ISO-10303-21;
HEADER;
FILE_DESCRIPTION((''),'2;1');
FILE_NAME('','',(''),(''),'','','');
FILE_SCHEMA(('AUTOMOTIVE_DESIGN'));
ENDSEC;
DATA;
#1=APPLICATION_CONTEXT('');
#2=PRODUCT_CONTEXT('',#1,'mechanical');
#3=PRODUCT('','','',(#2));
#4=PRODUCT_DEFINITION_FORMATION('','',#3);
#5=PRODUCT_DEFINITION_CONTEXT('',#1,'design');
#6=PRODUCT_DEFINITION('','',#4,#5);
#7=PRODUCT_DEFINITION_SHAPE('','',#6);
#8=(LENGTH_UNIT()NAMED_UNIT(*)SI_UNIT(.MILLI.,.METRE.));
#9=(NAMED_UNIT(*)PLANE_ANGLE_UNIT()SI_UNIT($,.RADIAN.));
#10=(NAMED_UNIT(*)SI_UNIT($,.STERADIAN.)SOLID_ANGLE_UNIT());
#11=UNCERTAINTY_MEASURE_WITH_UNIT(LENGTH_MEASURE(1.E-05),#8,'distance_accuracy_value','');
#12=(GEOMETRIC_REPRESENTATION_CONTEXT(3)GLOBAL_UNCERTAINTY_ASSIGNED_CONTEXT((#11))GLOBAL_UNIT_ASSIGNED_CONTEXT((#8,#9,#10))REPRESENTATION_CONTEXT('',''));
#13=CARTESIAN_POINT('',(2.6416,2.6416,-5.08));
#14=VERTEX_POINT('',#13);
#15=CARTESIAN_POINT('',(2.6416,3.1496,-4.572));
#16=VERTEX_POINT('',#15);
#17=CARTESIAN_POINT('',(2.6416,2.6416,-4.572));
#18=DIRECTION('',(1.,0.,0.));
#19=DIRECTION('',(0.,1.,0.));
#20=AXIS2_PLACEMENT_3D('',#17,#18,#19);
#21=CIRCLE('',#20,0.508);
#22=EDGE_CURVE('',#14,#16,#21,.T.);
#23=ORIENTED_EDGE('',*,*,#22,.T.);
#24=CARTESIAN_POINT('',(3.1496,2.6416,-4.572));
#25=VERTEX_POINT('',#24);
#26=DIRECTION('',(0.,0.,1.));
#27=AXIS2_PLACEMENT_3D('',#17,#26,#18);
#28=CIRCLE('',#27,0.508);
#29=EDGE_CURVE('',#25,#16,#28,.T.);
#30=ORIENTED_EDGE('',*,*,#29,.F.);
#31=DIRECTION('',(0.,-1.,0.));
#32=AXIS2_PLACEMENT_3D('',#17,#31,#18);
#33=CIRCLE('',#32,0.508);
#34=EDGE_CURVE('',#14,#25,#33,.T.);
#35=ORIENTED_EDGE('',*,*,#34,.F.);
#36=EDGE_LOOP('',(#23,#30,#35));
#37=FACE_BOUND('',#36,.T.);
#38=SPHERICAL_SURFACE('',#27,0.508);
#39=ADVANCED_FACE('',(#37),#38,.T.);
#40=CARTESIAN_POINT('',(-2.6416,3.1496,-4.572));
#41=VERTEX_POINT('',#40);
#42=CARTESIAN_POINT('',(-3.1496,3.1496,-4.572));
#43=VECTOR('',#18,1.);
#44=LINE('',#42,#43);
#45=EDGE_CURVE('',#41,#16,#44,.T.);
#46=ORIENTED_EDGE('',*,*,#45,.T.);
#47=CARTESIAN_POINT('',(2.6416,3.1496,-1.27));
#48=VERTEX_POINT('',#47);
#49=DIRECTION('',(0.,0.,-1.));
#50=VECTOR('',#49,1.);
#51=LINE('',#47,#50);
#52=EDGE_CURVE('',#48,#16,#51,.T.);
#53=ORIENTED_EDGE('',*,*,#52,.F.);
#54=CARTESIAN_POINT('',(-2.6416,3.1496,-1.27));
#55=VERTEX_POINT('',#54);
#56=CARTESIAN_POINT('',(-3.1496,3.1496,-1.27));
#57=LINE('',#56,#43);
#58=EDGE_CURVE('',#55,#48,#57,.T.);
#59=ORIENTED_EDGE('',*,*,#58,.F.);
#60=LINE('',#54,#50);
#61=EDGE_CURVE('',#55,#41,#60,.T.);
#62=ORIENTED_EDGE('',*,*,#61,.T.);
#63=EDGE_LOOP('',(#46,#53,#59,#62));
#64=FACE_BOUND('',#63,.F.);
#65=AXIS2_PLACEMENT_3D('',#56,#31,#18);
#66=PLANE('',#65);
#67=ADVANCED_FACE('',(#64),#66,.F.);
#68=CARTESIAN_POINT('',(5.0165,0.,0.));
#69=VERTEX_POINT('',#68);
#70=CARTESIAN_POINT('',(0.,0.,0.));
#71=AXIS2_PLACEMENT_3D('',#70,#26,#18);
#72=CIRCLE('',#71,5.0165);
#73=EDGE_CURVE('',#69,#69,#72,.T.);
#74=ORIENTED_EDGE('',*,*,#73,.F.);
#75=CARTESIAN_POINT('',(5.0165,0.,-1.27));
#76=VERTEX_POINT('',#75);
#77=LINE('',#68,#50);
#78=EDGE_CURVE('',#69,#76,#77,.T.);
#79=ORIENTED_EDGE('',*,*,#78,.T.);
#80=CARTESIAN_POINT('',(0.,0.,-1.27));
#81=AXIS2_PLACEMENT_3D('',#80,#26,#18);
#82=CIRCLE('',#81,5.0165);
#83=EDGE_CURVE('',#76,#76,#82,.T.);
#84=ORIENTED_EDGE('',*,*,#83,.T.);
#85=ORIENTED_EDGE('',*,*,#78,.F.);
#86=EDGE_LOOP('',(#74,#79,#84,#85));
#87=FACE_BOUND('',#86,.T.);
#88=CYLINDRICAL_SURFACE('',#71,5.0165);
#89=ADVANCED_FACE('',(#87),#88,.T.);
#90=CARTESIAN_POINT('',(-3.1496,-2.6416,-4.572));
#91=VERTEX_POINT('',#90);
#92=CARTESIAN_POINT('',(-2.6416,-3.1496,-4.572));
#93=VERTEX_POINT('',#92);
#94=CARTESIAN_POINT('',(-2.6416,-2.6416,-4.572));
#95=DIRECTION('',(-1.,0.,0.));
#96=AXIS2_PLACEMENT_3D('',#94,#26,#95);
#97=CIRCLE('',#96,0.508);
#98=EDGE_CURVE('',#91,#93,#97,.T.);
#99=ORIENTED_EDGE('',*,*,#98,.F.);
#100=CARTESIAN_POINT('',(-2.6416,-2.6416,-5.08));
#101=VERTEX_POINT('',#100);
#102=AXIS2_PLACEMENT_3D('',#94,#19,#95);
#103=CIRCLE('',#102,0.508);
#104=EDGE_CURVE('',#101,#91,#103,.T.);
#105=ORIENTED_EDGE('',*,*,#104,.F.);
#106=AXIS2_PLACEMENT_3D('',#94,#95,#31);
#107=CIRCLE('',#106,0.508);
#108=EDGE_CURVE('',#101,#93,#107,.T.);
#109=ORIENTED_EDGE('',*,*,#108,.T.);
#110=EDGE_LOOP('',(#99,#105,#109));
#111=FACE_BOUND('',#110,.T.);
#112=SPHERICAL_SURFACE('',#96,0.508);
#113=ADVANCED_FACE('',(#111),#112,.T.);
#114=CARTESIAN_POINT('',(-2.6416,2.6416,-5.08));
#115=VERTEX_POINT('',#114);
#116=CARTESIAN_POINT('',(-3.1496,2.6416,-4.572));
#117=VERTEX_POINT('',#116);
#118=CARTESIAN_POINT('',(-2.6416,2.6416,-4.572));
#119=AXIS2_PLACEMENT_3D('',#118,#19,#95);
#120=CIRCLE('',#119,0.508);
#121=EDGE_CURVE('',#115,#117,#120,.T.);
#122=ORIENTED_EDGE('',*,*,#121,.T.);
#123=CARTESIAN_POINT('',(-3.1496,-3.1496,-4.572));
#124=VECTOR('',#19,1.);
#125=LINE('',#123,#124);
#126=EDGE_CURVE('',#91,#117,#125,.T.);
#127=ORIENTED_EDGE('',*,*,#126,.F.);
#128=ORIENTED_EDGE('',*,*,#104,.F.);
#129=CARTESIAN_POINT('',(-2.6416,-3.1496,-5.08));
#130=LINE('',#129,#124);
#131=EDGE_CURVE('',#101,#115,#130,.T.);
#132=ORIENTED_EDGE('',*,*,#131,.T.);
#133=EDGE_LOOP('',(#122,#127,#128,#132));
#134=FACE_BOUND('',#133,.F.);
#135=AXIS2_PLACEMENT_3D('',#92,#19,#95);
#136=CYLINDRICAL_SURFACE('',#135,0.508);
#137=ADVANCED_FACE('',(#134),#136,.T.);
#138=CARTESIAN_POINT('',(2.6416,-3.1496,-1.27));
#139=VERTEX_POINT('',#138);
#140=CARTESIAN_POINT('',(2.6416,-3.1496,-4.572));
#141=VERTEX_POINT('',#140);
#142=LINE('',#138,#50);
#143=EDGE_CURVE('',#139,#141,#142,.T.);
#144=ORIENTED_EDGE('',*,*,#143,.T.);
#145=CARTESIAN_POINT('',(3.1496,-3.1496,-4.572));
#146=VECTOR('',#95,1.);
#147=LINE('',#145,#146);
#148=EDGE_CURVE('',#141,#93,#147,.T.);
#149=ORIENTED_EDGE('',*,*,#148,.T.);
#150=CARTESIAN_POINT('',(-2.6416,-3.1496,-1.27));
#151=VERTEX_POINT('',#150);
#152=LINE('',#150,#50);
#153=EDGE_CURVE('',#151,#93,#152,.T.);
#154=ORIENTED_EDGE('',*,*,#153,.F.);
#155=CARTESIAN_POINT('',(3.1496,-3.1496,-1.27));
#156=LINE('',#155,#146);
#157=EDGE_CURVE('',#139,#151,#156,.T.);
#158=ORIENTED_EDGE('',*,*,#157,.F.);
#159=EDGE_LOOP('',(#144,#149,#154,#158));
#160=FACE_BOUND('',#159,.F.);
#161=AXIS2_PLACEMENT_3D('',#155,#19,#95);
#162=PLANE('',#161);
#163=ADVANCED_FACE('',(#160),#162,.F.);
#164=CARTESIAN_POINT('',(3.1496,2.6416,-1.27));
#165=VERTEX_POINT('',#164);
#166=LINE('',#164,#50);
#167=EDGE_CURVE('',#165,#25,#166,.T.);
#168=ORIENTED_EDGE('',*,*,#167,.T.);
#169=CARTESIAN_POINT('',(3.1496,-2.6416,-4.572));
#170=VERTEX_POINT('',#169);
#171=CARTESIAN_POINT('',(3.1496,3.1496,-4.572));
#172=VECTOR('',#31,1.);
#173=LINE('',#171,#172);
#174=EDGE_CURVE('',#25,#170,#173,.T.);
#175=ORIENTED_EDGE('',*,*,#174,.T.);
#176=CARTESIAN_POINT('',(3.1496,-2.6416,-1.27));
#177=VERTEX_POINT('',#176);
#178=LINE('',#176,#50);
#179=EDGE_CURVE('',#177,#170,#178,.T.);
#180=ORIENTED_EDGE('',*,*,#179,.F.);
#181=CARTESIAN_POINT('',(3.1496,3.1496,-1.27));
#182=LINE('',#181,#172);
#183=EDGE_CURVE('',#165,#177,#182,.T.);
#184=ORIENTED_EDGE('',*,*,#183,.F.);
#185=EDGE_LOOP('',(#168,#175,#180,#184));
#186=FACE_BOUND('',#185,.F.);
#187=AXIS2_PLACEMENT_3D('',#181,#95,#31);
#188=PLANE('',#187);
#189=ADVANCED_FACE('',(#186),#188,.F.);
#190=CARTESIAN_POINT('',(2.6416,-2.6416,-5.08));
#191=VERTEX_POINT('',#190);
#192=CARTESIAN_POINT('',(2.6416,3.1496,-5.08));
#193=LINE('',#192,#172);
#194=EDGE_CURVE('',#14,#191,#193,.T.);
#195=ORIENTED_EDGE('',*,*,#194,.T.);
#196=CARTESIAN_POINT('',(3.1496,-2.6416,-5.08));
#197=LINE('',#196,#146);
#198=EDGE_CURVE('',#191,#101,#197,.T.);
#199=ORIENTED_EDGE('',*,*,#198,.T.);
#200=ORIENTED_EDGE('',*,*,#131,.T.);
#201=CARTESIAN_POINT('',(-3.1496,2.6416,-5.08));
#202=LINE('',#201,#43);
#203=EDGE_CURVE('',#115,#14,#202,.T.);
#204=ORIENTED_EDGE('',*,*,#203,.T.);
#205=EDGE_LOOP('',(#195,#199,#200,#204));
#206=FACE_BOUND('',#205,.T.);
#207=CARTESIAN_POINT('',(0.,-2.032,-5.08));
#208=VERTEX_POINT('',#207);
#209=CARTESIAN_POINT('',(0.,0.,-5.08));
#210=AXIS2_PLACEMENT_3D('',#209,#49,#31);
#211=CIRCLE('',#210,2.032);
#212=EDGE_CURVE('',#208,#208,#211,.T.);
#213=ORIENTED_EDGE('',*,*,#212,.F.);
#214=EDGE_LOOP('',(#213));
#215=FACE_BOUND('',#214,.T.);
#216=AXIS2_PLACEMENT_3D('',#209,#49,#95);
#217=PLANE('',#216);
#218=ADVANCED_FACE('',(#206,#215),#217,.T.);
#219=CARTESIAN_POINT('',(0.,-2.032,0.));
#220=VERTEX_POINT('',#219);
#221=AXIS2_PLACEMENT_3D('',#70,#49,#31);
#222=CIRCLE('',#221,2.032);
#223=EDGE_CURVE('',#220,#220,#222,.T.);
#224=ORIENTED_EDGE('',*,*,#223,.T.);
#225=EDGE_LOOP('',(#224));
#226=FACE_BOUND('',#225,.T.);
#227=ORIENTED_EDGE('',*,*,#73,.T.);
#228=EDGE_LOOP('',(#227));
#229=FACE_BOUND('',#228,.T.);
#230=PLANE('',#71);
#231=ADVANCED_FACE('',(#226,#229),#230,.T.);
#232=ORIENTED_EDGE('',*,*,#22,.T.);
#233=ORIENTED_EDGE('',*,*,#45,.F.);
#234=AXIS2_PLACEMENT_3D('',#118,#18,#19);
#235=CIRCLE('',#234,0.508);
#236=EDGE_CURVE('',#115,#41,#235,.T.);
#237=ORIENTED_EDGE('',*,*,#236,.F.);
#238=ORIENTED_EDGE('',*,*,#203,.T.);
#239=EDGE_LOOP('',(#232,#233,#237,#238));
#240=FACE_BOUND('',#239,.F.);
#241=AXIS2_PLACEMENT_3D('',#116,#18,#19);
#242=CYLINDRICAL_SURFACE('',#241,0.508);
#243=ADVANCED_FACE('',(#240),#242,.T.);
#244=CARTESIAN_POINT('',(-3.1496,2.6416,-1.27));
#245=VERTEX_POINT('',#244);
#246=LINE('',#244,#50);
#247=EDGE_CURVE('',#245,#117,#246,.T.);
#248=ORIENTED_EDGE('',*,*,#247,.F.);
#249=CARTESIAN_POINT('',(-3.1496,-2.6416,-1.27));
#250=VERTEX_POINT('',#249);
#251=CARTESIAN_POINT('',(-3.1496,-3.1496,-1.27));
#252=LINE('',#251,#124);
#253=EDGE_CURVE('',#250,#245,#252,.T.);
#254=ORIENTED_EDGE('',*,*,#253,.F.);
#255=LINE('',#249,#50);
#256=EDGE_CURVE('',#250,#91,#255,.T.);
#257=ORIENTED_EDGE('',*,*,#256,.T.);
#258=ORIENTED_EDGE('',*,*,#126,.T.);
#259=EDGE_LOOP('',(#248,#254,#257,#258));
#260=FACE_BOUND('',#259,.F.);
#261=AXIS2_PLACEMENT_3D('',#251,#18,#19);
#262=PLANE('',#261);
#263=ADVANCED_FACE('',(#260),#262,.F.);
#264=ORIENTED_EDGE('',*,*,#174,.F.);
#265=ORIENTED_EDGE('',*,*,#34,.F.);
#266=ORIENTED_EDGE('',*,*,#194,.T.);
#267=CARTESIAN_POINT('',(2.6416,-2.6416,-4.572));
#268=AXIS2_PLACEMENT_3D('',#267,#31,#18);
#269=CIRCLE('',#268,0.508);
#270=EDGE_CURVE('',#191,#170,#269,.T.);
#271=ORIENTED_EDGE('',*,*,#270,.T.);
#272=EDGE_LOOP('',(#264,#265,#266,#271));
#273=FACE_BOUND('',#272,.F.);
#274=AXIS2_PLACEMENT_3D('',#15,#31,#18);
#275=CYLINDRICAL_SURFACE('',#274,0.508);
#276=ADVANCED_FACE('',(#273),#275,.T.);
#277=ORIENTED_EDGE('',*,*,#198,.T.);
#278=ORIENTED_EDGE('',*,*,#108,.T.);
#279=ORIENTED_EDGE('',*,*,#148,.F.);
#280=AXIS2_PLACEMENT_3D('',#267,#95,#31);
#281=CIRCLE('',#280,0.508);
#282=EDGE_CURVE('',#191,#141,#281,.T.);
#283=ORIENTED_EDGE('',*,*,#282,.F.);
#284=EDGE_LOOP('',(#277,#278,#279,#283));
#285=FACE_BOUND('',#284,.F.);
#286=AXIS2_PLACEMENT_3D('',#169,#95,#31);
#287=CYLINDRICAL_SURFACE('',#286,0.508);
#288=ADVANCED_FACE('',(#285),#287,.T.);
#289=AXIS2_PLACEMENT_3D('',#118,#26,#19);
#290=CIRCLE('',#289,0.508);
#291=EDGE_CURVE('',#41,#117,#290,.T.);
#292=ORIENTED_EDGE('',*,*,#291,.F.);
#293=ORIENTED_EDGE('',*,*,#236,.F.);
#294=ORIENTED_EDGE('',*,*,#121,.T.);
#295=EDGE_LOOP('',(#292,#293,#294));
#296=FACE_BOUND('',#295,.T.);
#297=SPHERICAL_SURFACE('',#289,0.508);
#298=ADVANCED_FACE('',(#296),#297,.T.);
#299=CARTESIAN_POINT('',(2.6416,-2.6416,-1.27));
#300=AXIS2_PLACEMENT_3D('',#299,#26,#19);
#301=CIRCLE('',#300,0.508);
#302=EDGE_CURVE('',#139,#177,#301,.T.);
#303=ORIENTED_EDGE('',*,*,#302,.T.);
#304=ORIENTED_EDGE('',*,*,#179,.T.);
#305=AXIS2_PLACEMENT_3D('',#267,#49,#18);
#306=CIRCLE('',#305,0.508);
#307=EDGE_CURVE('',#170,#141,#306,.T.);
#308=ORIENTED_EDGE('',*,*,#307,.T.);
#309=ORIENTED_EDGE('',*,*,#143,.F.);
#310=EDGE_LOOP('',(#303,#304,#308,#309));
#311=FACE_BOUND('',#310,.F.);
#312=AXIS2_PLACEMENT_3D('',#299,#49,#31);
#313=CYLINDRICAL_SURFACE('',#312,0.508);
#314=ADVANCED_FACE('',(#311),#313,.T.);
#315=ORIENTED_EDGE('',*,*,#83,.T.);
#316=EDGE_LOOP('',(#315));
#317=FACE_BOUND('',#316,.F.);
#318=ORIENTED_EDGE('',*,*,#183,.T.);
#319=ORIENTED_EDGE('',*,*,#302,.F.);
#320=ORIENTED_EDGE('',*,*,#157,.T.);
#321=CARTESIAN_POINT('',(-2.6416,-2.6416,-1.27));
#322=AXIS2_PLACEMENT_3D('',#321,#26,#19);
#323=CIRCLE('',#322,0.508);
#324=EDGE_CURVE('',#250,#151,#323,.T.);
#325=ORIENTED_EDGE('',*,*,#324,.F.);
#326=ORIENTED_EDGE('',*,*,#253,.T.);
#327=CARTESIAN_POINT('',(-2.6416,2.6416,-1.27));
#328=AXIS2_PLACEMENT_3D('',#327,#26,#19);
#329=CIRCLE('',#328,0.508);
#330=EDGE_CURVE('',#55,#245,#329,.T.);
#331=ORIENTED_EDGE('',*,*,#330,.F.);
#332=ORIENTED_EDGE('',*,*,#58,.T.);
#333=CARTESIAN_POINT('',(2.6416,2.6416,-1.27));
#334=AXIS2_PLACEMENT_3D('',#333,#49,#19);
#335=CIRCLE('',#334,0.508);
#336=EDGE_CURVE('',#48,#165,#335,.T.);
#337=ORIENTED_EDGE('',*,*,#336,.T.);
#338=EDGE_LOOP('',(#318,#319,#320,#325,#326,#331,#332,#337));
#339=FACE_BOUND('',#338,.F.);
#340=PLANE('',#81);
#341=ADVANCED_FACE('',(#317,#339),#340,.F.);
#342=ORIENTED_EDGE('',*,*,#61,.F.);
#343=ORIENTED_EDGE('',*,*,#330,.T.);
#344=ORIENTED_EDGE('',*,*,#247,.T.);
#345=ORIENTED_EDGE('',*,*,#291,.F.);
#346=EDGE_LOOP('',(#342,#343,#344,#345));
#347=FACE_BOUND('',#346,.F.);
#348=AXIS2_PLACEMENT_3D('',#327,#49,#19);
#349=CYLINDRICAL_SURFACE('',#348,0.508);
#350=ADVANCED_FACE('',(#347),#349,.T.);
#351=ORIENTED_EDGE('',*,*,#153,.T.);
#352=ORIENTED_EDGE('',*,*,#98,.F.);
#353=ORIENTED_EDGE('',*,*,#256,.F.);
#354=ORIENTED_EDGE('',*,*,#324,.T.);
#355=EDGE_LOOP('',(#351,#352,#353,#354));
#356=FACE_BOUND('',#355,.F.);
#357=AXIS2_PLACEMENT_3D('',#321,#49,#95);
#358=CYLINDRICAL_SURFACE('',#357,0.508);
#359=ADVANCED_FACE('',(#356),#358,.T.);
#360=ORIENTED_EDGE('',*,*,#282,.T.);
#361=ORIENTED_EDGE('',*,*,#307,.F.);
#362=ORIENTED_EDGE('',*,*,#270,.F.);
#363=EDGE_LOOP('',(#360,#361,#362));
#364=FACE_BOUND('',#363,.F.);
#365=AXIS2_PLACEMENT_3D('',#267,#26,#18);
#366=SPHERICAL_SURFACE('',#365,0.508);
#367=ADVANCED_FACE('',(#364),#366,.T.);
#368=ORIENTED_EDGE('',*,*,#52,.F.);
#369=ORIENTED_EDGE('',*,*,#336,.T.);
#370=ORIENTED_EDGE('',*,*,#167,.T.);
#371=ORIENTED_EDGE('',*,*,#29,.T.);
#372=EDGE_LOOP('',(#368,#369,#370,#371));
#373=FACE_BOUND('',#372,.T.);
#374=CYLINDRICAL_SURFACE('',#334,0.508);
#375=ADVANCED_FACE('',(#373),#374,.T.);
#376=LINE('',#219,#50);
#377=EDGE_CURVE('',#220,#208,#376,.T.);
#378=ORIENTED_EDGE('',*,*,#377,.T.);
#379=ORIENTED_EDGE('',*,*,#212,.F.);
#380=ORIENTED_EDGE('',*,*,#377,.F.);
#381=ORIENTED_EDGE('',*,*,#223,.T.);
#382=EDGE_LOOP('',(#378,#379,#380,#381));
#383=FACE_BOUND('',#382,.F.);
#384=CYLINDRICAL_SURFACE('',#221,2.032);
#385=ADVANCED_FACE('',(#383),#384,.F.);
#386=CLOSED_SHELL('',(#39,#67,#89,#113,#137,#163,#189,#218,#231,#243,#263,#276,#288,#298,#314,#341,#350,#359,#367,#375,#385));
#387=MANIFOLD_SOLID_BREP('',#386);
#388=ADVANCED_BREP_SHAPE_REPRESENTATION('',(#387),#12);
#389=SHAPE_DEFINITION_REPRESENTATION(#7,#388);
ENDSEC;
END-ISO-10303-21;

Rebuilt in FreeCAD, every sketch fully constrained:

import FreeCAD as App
import Part
import Sketcher
from FreeCAD import Vector
Q = App.Units.Quantity


def edges_at(feature, points):
    """Names of the edges that pass closest to the given points."""
    edges = feature.Shape.Edges
    near = lambda p: min(range(len(edges)), key=lambda i: edges[i].distToShape(Part.Vertex(*p))[0])
    return sorted({f"Edge{near(p) + 1}" for p in points})


def add_polygon(sketch, points):
    """Adds a closed chain of lines whose ends are joined by coincident constraints."""
    first, n = sketch.GeometryCount, len(points)
    for a, b in zip(points, points[1:] + points[:1]):
        sketch.addGeometry(Part.LineSegment(App.Vector(*a, 0), App.Vector(*b, 0)), False)
    for i in range(n):
        sketch.addConstraint(Sketcher.Constraint("Coincident", first + i, 2, first + (i + 1) % n, 1))

doc = App.newDocument("Part")
params = doc.addObject("Spreadsheet::Sheet", "Params")
for row, (alias, value) in enumerate([
    ("sketch1_diameter", "0.395 in"),
    ("pad1_length", "0.05 in"),
    ("sketch2_width", "0.248 in"),
    ("pad2_length", "0.15 in"),
    ("fillet_radius", "0.02 in"),
    ("sketch3_diameter", "0.16 in"),
    ("hole_diameter", "0.16 in"),
], start=1):
    params.set(f"A{row}", alias)
    params.set(f"B{row}", "=" + value)
    params.setAlias(f"B{row}", alias)

body = doc.addObject("PartDesign::Body", "Body")

# Sketch on XY plane
sketch1 = doc.addObject("Sketcher::SketchObject", "Sketch")
body.addObject(sketch1)
sketch1.AttachmentSupport = (doc.XY_Plane, [""])
sketch1.MapMode = "FlatFace"
sketch1.addGeometry(Part.Circle(Vector(0, 0, 0), Vector(0, 0, 1), 5), False)
sketch1.addConstraint(Sketcher.Constraint("Coincident", 0, 3, -1, 1))
sketch1.addConstraint(Sketcher.Constraint("Diameter", 0, Q("0.395 in")))
sketch1.setExpression("Constraints[1]", "Params.sketch1_diameter")
pad1 = doc.addObject("PartDesign::Pad", "Pad")
body.addObject(pad1)
pad1.Profile = sketch1
pad1.setExpression("Length", "Params.pad1_length")
pad1.Reversed = True

# Sketch on XY plane
sketch2 = doc.addObject("Sketcher::SketchObject", "Sketch001")
body.addObject(sketch2)
sketch2.AttachmentSupport = (doc.XY_Plane, [""])
sketch2.MapMode = "FlatFace"
sketch2.AttachmentOffset = App.Placement(Vector(0, 0, -0.05 * 25.4), App.Rotation())
add_polygon(sketch2, [(3, 3), (3, -3), (-3, -3), (-3, 3)])  # lines 0-3
sketch2.addConstraint(Sketcher.Constraint("Vertical", 0))
sketch2.addConstraint(Sketcher.Constraint("Horizontal", 1))
sketch2.addConstraint(Sketcher.Constraint("Vertical", 2))
sketch2.addConstraint(Sketcher.Constraint("Horizontal", 3))
sketch2.addConstraint(Sketcher.Constraint("Symmetric", 0, 2, 2, 2, -1, 1))
sketch2.addConstraint(Sketcher.Constraint("Equal", 3, 0))
sketch2.addConstraint(Sketcher.Constraint("DistanceX", 1, 2, 1, 1, Q("0.248 in")))
sketch2.setExpression("Constraints[10]", "Params.sketch2_width")
pad2 = doc.addObject("PartDesign::Pad", "Pad001")
body.addObject(pad2)
pad2.Profile = sketch2
pad2.setExpression("Length", "Params.pad2_length")
pad2.Reversed = True
doc.recompute()

fillet = doc.addObject("PartDesign::Fillet", "Fillet")
body.addObject(fillet)
fillet.Base = (pad2, edges_at(pad2, [
    (3.15, 3.15, -3.175),
    (-3.15, 3.15, -3.175),
    (-3.15, -3.15, -3.175),
    (3.15, -3.15, -3.175),
    (3.15, 0, -5.08),
    (0, 3.15, -5.08),
    (-3.15, 0, -5.08),
    (0, -3.15, -5.08),
]))
fillet.setExpression("Radius", "Params.fillet_radius")

# Sketch on XY plane
sketch3 = doc.addObject("Sketcher::SketchObject", "Sketch002")
body.addObject(sketch3)
sketch3.AttachmentSupport = (doc.XY_Plane, [""])
sketch3.MapMode = "FlatFace"
sketch3.addGeometry(Part.Circle(Vector(0, 0, 0), Vector(0, 0, 1), 2), False)
sketch3.addConstraint(Sketcher.Constraint("Coincident", 0, 3, -1, 1))
sketch3.addConstraint(Sketcher.Constraint("Diameter", 0, Q("0.16 in")))
sketch3.setExpression("Constraints[1]", "Params.sketch3_diameter")
doc.recompute()
hole = doc.addObject("PartDesign::Hole", "Hole")
body.addObject(hole)
hole.Profile = sketch3
hole.ThreadType = "None"
hole.setExpression("Diameter", "Params.hole_diameter")
hole.DepthType = "ThroughAll"

doc.recompute()
